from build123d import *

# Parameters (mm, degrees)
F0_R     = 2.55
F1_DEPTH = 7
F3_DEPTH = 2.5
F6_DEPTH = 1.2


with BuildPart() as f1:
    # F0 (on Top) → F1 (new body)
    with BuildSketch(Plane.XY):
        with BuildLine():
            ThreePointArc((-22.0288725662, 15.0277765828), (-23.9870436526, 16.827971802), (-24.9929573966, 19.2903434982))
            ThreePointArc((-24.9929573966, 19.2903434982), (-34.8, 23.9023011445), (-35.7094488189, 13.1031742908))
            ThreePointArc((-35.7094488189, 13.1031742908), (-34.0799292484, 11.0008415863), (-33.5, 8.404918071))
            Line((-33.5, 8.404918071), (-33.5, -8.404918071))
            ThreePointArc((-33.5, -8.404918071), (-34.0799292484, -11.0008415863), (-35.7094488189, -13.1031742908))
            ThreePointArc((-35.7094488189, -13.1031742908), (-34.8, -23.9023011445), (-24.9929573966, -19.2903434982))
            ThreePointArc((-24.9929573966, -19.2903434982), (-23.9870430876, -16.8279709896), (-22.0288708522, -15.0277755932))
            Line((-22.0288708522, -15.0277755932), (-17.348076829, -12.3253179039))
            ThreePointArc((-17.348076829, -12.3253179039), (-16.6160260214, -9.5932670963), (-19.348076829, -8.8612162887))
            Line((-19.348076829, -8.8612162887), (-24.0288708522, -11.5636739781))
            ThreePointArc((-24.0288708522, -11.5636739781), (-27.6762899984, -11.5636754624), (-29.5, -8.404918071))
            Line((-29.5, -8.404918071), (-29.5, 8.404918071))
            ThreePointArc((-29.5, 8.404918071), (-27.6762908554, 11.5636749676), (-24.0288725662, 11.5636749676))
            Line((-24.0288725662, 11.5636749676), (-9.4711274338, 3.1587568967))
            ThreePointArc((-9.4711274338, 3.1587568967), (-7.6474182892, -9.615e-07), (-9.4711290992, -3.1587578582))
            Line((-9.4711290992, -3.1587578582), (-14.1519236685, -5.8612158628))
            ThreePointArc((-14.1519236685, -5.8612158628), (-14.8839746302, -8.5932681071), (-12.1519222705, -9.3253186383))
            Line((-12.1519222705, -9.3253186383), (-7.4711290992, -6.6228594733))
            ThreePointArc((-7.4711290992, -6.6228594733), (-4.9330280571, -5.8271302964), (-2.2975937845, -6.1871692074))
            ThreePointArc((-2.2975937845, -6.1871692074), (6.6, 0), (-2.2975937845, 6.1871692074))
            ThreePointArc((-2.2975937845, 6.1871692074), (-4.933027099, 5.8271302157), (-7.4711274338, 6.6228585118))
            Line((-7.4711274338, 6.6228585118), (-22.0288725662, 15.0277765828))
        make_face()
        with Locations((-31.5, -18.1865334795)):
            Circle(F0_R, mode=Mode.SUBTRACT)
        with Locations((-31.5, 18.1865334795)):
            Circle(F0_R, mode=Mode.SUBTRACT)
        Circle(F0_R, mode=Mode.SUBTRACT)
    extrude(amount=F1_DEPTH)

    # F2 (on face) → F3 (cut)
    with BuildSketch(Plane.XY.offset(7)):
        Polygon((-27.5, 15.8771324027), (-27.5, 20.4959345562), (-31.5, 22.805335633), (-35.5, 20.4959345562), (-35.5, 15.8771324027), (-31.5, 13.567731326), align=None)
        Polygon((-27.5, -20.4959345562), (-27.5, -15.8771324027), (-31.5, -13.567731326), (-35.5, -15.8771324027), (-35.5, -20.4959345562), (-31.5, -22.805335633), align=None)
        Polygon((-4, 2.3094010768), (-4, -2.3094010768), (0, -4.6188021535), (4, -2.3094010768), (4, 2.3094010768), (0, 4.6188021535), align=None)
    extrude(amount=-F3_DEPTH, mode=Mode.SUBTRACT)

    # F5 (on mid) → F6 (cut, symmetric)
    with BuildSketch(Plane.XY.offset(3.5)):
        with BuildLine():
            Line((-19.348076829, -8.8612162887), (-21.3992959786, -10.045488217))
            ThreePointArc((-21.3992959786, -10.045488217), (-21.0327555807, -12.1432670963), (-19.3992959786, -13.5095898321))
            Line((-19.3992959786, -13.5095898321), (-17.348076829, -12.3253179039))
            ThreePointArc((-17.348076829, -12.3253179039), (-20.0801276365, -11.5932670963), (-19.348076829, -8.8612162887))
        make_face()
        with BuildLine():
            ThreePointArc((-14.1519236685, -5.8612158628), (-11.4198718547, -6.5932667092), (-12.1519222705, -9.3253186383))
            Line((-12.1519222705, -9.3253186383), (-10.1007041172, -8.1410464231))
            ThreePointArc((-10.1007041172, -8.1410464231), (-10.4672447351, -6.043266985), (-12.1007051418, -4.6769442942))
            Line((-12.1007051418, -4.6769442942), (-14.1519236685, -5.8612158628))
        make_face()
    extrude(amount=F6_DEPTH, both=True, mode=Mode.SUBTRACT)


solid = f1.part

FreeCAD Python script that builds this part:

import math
import FreeCAD as App
import Part
import Sketcher
Q = App.Units.Quantity


def add_polygon(sketch, points):
    """Adds a closed chain of lines whose ends are joined by coincident constraints."""
    first, n = sketch.GeometryCount, len(points)
    for a, b in zip(points, points[1:] + points[:1]):
        sketch.addGeometry(Part.LineSegment(App.Vector(*a, 0), App.Vector(*b, 0)), False)
    for i in range(n):
        sketch.addConstraint(Sketcher.Constraint("Coincident", first + i, 2, first + (i + 1) % n, 1))

doc = App.newDocument("Part")
body = doc.addObject("PartDesign::Body", "Body")

sketch1 = body.newObject("Sketcher::SketchObject", "Sketch")
sketch1.AttachmentSupport = (doc.getObject("XY_Plane"), [""])
sketch1.MapMode = "FlatFace"
sketch1.addGeometry([
    Part.ArcOfCircle(Part.Circle(App.Vector(-19, 20.3, 0), App.Vector(0, 0, 1), 6.1), math.radians(-170), math.radians(-120)),
    Part.ArcOfCircle(Part.Circle(App.Vector(-31.5, 18.2, 0), App.Vector(0, 0, 1), 6.6), math.radians(10), math.radians(230)),
    Part.ArcOfCircle(Part.Circle(App.Vector(-39.6, 8.4, 0), App.Vector(0, 0, 1), 6.1), math.radians(0), math.radians(50)),
    Part.LineSegment(App.Vector(-33.5, 8.4, 0), App.Vector(-33.5, -8.4, 0)),
    Part.ArcOfCircle(Part.Circle(App.Vector(-39.6, -8.4, 0), App.Vector(0, 0, 1), 6.1), math.radians(-50), math.radians(0)),
    Part.ArcOfCircle(Part.Circle(App.Vector(-31.5, -18.2, 0), App.Vector(0, 0, 1), 6.6), math.radians(130), math.radians(350)),
    Part.ArcOfCircle(Part.Circle(App.Vector(-19, -20.3, 0), App.Vector(0, 0, 1), 6.1), math.radians(120), math.radians(170)),
    Part.LineSegment(App.Vector(-22, -15, 0), App.Vector(-17.3, -12.3, 0)),
    Part.ArcOfCircle(Part.Circle(App.Vector(-18.3, -10.6, 0), App.Vector(0, 0, 1), 2), math.radians(-60), math.radians(120)),
    Part.LineSegment(App.Vector(-19.3, -8.9, 0), App.Vector(-24, -11.6, 0)),
    Part.ArcOfCircle(Part.Circle(App.Vector(-25.9, -8.4, 0), App.Vector(0, 0, 1), 3.6), math.radians(180), math.radians(300)),
    Part.LineSegment(App.Vector(-29.5, -8.4, 0), App.Vector(-29.5, 8.4, 0)),
    Part.ArcOfCircle(Part.Circle(App.Vector(-25.9, 8.4, 0), App.Vector(0, 0, 1), 3.6), math.radians(60), math.radians(180)),
    Part.LineSegment(App.Vector(-24, 11.6, 0), App.Vector(-9.5, 3.2, 0)),
    Part.ArcOfCircle(Part.Circle(App.Vector(-11.3, 0, 0), App.Vector(0, 0, 1), 3.6), math.radians(-60), math.radians(60)),
    Part.LineSegment(App.Vector(-9.5, -3.2, 0), App.Vector(-14.2, -5.9, 0)),
    Part.ArcOfCircle(Part.Circle(App.Vector(-13.2, -7.6, 0), App.Vector(0, 0, 1), 2), math.radians(120), math.radians(300)),
    Part.LineSegment(App.Vector(-12.2, -9.3, 0), App.Vector(-7.5, -6.6, 0)),
    Part.ArcOfCircle(Part.Circle(App.Vector(-4.4, -11.9, 0), App.Vector(0, 0, 1), 6.1), math.radians(70), math.radians(120)),
    Part.ArcOfCircle(Part.Circle(App.Vector(0, 0, 0), App.Vector(0, 0, 1), 6.6), math.radians(-110), math.radians(110)),
    Part.ArcOfCircle(Part.Circle(App.Vector(-4.4, 11.9, 0), App.Vector(0, 0, 1), 6.1), math.radians(-120), math.radians(-70)),
    Part.LineSegment(App.Vector(-7.5, 6.6, 0), App.Vector(-22, 15, 0)),
    Part.Circle(App.Vector(-31.5, -18.2, 0), App.Vector(0, 0, 1), 2.5),
    Part.Circle(App.Vector(-31.5, 18.2, 0), App.Vector(0, 0, 1), 2.5),
    Part.Circle(App.Vector(0, 0, 0), App.Vector(0, 0, 1), 2.5),
], False)
sketch1.addConstraint([
    Sketcher.Constraint("Tangent", 0, 1, 1, 1),
    Sketcher.Constraint("Tangent", 1, 2, 2, 2),
    Sketcher.Constraint("Tangent", 2, 1, 3, 1),
    Sketcher.Constraint("Tangent", 3, 2, 4, 2),
    Sketcher.Constraint("Tangent", 4, 1, 5, 1),
    Sketcher.Constraint("Tangent", 5, 2, 6, 2),
    Sketcher.Constraint("Tangent", 6, 1, 7, 1),
    Sketcher.Constraint("Tangent", 7, 2, 8, 1),
    Sketcher.Constraint("Tangent", 8, 2, 9, 1),
    Sketcher.Constraint("Tangent", 9, 2, 10, 2),
    Sketcher.Constraint("Tangent", 10, 1, 11, 1),
    Sketcher.Constraint("Tangent", 11, 2, 12, 2),
    Sketcher.Constraint("Tangent", 12, 1, 13, 1),
    Sketcher.Constraint("Tangent", 13, 2, 14, 2),
    Sketcher.Constraint("Tangent", 14, 1, 15, 1),
    Sketcher.Constraint("Tangent", 15, 2, 16, 1),
    Sketcher.Constraint("Tangent", 16, 2, 17, 1),
    Sketcher.Constraint("Tangent", 17, 2, 18, 2),
    Sketcher.Constraint("Tangent", 18, 1, 19, 1),
    Sketcher.Constraint("Tangent", 19, 2, 20, 2),
    Sketcher.Constraint("Tangent", 20, 1, 21, 1),
    Sketcher.Constraint("Tangent", 21, 2, 0, 2),
    Sketcher.Constraint("Vertical", 3),
    Sketcher.Constraint("Vertical", 11),
    Sketcher.Constraint("Coincident", 19, 3, -1, 1),
    Sketcher.Constraint("Coincident", 24, 3, -1, 1),
    Sketcher.Constraint("Coincident", 22, 3, 5, 3),
    Sketcher.Constraint("Coincident", 23, 3, 1, 3),
    Sketcher.Constraint("Equal", 0, 2),
    Sketcher.Constraint("Equal", 2, 4),
    Sketcher.Constraint("Equal", 1, 5),
    Sketcher.Constraint("Equal", 4, 6),
    Sketcher.Constraint("Equal", 10, 12),
    Sketcher.Constraint("Equal", 12, 14),
    Sketcher.Constraint("Equal", 8, 16),
    Sketcher.Constraint("Equal", 6, 18),
    Sketcher.Constraint("Equal", 5, 19),
    Sketcher.Constraint("Equal", 18, 20),
    Sketcher.Constraint("Equal", 22, 23),
    Sketcher.Constraint("Equal", 23, 24),
    Sketcher.Constraint("Symmetric", 1, 3, 5, 3, -1),
    Sketcher.Constraint("Symmetric", 9, 2, 12, 1, -1),
    Sketcher.Constraint("Symmetric", 13, 2, 14, 1, -1),
    Sketcher.Constraint("Symmetric", 17, 2, 20, 1, -1),
    Sketcher.Constraint("Symmetric", 6, 1, 21, 2, -1),
    Sketcher.Constraint("Horizontal", 4, 3, 10, 3),
    Sketcher.Constraint("Equal", 7, 9),
    Sketcher.Constraint("Equal", 9, 15),
    Sketcher.Constraint("Equal", 15, 17),
    Sketcher.Constraint("Radius", 8, Q("2 mm")),
    Sketcher.Constraint("Diameter", 22, Q("5.1 mm")),
    Sketcher.Constraint("Radius", 0, Q("6.1 mm")),
    Sketcher.Constraint("Radius", 1, Q("6.6 mm")),
    Sketcher.Constraint("Angle", 7, Q("30 deg")),
    Sketcher.Constraint("DistanceY", 8, 3, 16, 3, Q("3 mm")),
    Sketcher.Constraint("DistanceX", 2, 1, 23, 3, Q("2 mm")),
    Sketcher.Constraint("DistanceX", 3, 2, 10, 1, Q("4 mm")),
    Sketcher.Constraint("DistanceX", 1, 3, -1, 1, Q("31.5 mm")),
])
pad1 = body.newObject("PartDesign::Pad", "Pad")
pad1.Profile = sketch1
pad1.Length = 7

sketch2 = body.newObject("Sketcher::SketchObject", "Sketch001")
sketch2.AttachmentSupport = (doc.getObject("XY_Plane"), [""])
sketch2.MapMode = "FlatFace"
sketch2.AttachmentOffset = App.Placement(App.Vector(0, 0, 7), App.Rotation())
add_polygon(sketch2, [(-27.5, 15.9), (-27.5, 20.5), (-31.5, 22.8), (-35.5, 20.5), (-35.5, 15.9), (-31.5, 13.6)])
add_polygon(sketch2, [(-27.5, -20.5), (-27.5, -15.9), (-31.5, -13.6), (-35.5, -15.9), (-35.5, -20.5), (-31.5, -22.8)])
add_polygon(sketch2, [(-4, 2.3), (-4, -2.3), (0, -4.6), (4, -2.3), (4, 2.3), (0, 4.6)])
sketch2.addConstraint([
    Sketcher.Constraint("Vertical", 0),
    Sketcher.Constraint("Vertical", 3),
    Sketcher.Constraint("Vertical", 6),
    Sketcher.Constraint("Vertical", 9),
    Sketcher.Constraint("Vertical", 12),
    Sketcher.Constraint("Vertical", 15),
    Sketcher.Constraint("Symmetric", 12, 2, 15, 2, -1, 1),
    Sketcher.Constraint("Symmetric", 13, 2, 16, 2, -1, 1),
    Sketcher.Constraint("Symmetric", 5, 2, 6, 2, -1),
    Sketcher.Constraint("Symmetric", 4, 2, 7, 2, -1),
    Sketcher.Constraint("Symmetric", 3, 2, 8, 2, -1),
    Sketcher.Constraint("Symmetric", 1, 2, 10, 2, -1),
    Sketcher.Constraint("PointOnObject", 13, 2, -2),
    Sketcher.Constraint("Parallel", 1, 4),
    Sketcher.Constraint("Parallel", 2, 5),
    Sketcher.Constraint("Parallel", 4, 7),
    Sketcher.Constraint("Parallel", 7, 10),
    Sketcher.Constraint("Parallel", 8, 11),
    Sketcher.Constraint("Parallel", 10, 13),
    Sketcher.Constraint("Parallel", 11, 14),
    Sketcher.Constraint("Parallel", 14, 17),
    Sketcher.Constraint("Horizontal", 0, 2, 2, 2),
    Sketcher.Constraint("Horizontal", 3, 2, 5, 2),
    Sketcher.Constraint("Equal", 9, 12),
    Sketcher.Constraint("Equal", 11, 13),
    Sketcher.Constraint("Angle", 1, Q("150 deg")),
    Sketcher.Constraint("DistanceX", 12, 2, -1, 1, Q("4 mm")),
    Sketcher.Constraint("DistanceX", 0, 2, -1, 1, Q("27.5 mm")),
    Sketcher.Constraint("DistanceY", 12, 2, -1, 1, Q("2.309401 mm")),
    Sketcher.Constraint("DistanceY", -1, 1, 4, 2, Q("13.567731 mm")),
])
pocket1 = body.newObject("PartDesign::Pocket", "Pocket")
pocket1.Profile = sketch2
pocket1.Length = 2.5

sketch3 = body.newObject("Sketcher::SketchObject", "Sketch002")
sketch3.AttachmentSupport = (doc.getObject("XY_Plane"), [""])
sketch3.MapMode = "FlatFace"
sketch3.AttachmentOffset = App.Placement(App.Vector(0, 0, 3.5), App.Rotation())
sketch3.addGeometry([
    Part.LineSegment(App.Vector(-19.3, -8.9, 0), App.Vector(-21.4, -10, 0)),
    Part.ArcOfCircle(Part.Circle(App.Vector(-18.3, -10.6, 0), App.Vector(0, 0, 1), 3.1), math.radians(170), math.radians(250)),
    Part.LineSegment(App.Vector(-19.4, -13.5, 0), App.Vector(-17.3, -12.3, 0)),
    Part.ArcOfCircle(Part.Circle(App.Vector(-18.3, -10.6, 0), App.Vector(0, 0, 1), 2), math.radians(120), math.radians(300)),
    Part.ArcOfCircle(Part.Circle(App.Vector(-13.2, -7.6, 0), App.Vector(0, 0, 1), 2), math.radians(-60), math.radians(120)),
    Part.LineSegment(App.Vector(-12.2, -9.3, 0), App.Vector(-10.1, -8.1, 0)),
    Part.ArcOfCircle(Part.Circle(App.Vector(-13.2, -7.6, 0), App.Vector(0, 0, 1), 3.1), math.radians(-10), math.radians(70)),
    Part.LineSegment(App.Vector(-12.1, -4.7, 0), App.Vector(-14.2, -5.9, 0)),
], False)
sketch3.addConstraint([
    Sketcher.Constraint("Coincident", 0, 2, 1, 1),
    Sketcher.Constraint("Coincident", 1, 2, 2, 1),
    Sketcher.Constraint("Tangent", 2, 2, 3, 2),
    Sketcher.Constraint("Tangent", 3, 1, 0, 1),
    Sketcher.Constraint("Tangent", 4, 1, 5, 1),
    Sketcher.Constraint("Coincident", 5, 2, 6, 1),
    Sketcher.Constraint("Coincident", 6, 2, 7, 1),
    Sketcher.Constraint("Tangent", 7, 2, 4, 2),
    Sketcher.Constraint("Coincident", 3, 3, 1, 3),
    Sketcher.Constraint("Coincident", 6, 3, 4, 3),
    Sketcher.Constraint("Equal", 3, 4),
    Sketcher.Constraint("Equal", 1, 6),
    Sketcher.Constraint("Parallel", 0, 2),
    Sketcher.Constraint("Parallel", 2, 5),
    Sketcher.Constraint("Parallel", 5, 7),
    Sketcher.Constraint("Radius", 3, Q("2 mm")),
    Sketcher.Constraint("Radius", 1, Q("3.1 mm")),
    Sketcher.Constraint("Angle", 0, Q("-150 deg")),
    Sketcher.Constraint("DistanceY", 1, 3, 4, 3, Q("3 mm")),
    Sketcher.Constraint("DistanceY", 0, 2, -1, 1, Q("10.045488 mm")),
    Sketcher.Constraint("DistanceX", 3, 1, 6, 2, Q("7.247372 mm")),
    Sketcher.Constraint("DistanceX", 1, 3, -1, 1, Q("18.348077 mm")),
])
pocket2 = body.newObject("PartDesign::Pocket", "Pocket001")
pocket2.Profile = sketch3
pocket2.Length = 2.4
pocket2.Midplane = True

doc.recompute()
